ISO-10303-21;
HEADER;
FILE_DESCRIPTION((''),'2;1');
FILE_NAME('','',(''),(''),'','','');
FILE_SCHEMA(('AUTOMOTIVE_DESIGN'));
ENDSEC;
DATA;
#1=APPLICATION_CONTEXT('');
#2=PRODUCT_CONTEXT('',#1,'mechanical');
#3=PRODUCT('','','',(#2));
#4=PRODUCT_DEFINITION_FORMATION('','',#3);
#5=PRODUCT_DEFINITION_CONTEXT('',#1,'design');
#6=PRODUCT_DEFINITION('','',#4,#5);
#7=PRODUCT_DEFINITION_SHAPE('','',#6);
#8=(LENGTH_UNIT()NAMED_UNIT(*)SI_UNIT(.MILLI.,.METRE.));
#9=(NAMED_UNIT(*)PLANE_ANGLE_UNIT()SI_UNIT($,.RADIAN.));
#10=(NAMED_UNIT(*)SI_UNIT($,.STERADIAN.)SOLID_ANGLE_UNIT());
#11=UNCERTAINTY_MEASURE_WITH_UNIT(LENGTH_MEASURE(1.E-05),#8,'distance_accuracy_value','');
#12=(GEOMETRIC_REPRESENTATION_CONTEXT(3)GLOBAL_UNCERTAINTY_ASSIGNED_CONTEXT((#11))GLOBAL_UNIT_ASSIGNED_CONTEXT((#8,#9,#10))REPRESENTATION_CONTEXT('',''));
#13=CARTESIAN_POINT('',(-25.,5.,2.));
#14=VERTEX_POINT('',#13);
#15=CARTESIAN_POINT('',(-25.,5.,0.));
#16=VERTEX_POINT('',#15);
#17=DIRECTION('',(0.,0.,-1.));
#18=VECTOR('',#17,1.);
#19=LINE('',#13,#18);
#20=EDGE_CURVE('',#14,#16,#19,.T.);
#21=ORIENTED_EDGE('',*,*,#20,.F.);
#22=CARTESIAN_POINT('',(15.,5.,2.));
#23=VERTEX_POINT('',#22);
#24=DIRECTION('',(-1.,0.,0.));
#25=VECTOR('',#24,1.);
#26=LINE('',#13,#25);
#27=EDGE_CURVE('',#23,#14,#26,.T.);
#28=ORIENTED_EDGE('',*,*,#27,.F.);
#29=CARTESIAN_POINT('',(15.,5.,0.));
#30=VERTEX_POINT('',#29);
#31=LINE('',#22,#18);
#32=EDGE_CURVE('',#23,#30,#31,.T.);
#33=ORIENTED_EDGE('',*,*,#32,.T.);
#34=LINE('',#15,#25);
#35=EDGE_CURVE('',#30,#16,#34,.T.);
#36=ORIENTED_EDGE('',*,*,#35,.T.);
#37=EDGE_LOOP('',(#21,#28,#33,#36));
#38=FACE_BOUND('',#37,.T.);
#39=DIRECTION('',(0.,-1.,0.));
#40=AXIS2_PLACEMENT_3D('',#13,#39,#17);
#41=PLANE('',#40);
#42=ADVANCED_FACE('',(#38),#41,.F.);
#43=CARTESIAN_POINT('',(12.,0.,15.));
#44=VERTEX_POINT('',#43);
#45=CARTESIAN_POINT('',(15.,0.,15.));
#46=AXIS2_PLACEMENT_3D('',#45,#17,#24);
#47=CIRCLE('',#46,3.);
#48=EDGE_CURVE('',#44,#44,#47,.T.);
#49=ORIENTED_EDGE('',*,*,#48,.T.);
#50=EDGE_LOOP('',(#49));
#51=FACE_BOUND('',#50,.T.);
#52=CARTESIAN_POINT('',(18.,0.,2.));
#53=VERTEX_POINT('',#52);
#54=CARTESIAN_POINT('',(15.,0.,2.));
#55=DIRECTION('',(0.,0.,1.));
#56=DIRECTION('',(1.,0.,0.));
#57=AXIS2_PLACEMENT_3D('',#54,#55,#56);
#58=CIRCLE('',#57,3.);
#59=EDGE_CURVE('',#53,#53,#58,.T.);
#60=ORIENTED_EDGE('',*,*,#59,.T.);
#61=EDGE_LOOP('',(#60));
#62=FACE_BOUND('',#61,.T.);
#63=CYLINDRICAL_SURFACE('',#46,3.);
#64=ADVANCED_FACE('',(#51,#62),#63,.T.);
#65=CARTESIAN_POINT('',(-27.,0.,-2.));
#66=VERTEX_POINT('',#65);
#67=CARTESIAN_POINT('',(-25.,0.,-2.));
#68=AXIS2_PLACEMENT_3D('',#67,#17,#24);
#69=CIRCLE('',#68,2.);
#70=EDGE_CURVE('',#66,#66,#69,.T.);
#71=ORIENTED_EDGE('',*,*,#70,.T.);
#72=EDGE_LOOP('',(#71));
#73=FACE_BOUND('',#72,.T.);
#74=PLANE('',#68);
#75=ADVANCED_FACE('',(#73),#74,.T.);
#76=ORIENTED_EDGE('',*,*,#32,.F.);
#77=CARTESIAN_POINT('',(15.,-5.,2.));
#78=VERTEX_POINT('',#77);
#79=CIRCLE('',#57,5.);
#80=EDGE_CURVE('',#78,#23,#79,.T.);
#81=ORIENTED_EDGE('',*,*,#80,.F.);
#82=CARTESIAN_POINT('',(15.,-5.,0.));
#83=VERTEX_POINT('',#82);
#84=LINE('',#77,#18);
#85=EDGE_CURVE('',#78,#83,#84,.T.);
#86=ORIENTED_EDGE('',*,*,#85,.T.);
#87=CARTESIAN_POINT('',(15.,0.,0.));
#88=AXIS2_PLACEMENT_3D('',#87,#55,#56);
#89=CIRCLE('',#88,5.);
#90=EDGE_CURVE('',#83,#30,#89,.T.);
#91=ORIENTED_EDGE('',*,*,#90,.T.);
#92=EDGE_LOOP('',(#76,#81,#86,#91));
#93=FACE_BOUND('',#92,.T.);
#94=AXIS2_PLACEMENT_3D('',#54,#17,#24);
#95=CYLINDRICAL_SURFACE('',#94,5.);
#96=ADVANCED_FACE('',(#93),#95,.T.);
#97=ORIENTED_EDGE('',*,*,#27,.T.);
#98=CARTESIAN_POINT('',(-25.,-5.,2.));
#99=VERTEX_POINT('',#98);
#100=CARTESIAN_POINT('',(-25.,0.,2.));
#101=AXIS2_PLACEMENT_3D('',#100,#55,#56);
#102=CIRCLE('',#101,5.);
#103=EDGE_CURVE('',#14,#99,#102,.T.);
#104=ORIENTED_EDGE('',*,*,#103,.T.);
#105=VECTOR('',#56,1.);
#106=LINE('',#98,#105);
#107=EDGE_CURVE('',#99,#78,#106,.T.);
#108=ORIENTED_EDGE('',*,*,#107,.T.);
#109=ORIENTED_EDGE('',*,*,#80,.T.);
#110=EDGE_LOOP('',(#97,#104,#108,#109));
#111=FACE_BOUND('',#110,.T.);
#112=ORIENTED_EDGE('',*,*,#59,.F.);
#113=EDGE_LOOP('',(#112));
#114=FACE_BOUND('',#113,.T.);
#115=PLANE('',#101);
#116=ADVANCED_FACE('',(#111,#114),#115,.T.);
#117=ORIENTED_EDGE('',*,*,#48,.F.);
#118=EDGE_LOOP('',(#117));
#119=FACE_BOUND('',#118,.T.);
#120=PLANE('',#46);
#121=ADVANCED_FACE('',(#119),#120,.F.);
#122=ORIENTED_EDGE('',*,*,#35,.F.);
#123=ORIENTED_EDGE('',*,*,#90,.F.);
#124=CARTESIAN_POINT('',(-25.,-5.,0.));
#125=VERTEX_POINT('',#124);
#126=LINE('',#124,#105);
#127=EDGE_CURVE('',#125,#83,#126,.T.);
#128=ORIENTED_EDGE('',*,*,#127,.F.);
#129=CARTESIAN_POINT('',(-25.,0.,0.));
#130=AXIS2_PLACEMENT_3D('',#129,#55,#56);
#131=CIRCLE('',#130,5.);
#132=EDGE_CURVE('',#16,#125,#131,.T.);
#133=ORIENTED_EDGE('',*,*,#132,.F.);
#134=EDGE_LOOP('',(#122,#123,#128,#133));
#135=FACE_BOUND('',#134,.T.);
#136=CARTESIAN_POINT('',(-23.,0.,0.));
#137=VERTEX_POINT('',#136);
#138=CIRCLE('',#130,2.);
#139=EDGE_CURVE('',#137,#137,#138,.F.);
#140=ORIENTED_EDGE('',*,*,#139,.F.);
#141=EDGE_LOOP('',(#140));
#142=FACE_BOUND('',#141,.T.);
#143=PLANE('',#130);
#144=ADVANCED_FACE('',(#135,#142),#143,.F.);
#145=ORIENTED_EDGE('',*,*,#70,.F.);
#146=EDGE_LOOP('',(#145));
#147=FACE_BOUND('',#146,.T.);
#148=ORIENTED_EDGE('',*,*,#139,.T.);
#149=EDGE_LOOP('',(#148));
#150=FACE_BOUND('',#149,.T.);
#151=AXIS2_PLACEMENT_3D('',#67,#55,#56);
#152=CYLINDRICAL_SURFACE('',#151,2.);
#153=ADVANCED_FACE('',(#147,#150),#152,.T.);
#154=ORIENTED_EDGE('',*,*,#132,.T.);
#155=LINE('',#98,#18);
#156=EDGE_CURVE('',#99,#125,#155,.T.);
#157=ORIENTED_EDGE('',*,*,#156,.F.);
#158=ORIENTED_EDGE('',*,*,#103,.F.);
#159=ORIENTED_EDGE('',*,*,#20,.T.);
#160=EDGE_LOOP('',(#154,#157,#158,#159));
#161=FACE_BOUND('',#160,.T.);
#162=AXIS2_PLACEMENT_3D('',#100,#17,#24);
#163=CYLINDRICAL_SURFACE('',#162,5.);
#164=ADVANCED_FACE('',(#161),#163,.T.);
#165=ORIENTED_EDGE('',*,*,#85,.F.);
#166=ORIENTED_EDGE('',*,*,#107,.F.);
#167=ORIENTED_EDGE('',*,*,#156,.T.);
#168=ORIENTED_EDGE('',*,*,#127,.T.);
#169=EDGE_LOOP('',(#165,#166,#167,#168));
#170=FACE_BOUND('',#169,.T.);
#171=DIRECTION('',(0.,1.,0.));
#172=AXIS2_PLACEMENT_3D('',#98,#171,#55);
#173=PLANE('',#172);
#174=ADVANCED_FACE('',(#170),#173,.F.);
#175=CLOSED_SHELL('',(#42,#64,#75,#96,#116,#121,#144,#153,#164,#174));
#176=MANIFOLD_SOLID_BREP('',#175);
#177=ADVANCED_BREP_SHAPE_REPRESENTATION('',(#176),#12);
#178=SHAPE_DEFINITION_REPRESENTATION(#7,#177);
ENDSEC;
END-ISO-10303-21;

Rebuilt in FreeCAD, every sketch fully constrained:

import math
import FreeCAD as App
import Part
import Sketcher

doc = App.newDocument("Part")
params = doc.addObject("Spreadsheet::Sheet", "Params")
for row, (alias, value) in enumerate([
    ("sketch1_radius", "5 mm"),
    ("sketch1_width", "40 mm"),
    ("pad1_length", "2 mm"),
    ("sketch2_diameter", "4 mm"),
    ("pad2_length", "2 mm"),
    ("sketch3_diameter", "6 mm"),
    ("pad3_length", "15 mm"),
], start=1):
    params.set(f"A{row}", alias)
    params.set(f"B{row}", "=" + value)
    params.setAlias(f"B{row}", alias)

body = doc.addObject("PartDesign::Body", "Body")

# Sketch on XY plane
sketch1 = body.newObject("Sketcher::SketchObject", "Sketch")
sketch1.AttachmentSupport = (doc.getObject("XY_Plane"), [""])
sketch1.MapMode = "FlatFace"
sketch1.addGeometry([
    Part.LineSegment(App.Vector(15, 5, 0), App.Vector(-25, 5, 0)),
    Part.ArcOfCircle(Part.Circle(App.Vector(-25, 0, 0), App.Vector(0, 0, 1), 5), math.radians(90), math.radians(270)),
    Part.LineSegment(App.Vector(-25, -5, 0), App.Vector(15, -5, 0)),
    Part.ArcOfCircle(Part.Circle(App.Vector(15, 0, 0), App.Vector(0, 0, 1), 5), math.radians(-90), math.radians(90)),
], False)
sketch1.addConstraint([
    Sketcher.Constraint("Tangent", 0, 2, 1, 1),
    Sketcher.Constraint("Tangent", 1, 2, 2, 1),
    Sketcher.Constraint("Tangent", 2, 2, 3, 1),
    Sketcher.Constraint("Tangent", 3, 2, 0, 1),
    Sketcher.Constraint("Horizontal", 0),
    Sketcher.Constraint("Horizontal", 2),
    Sketcher.Constraint("PointOnObject", 1, 3, -1),
    Sketcher.Constraint("Radius", 1, 5.0),
    Sketcher.Constraint("DistanceX", 0, 2, 0, 1, 40.0),
    Sketcher.Constraint("DistanceX", 1, 3, -1, 1, 25.0),
])
sketch1.setExpression("Constraints[7]", "Params.sketch1_radius")
sketch1.setExpression("Constraints[8]", "Params.sketch1_width")
pad1 = body.newObject("PartDesign::Pad", "Pad")
pad1.Profile = sketch1
pad1.setExpression("Length", "Params.pad1_length")

# Sketch on XY plane
sketch2 = body.newObject("Sketcher::SketchObject", "Sketch001")
sketch2.AttachmentSupport = (doc.getObject("XY_Plane"), [""])
sketch2.MapMode = "FlatFace"
sketch2.addGeometry(Part.Circle(App.Vector(-25, 0, 0), App.Vector(0, 0, 1), 2), False)
sketch2.addConstraint([
    Sketcher.Constraint("PointOnObject", 0, 3, -1),
    Sketcher.Constraint("Diameter", 0, 4.0),
    Sketcher.Constraint("DistanceX", 0, 3, -1, 1, 25.0),
])
sketch2.setExpression("Constraints[1]", "Params.sketch2_diameter")
pad2 = body.newObject("PartDesign::Pad", "Pad001")
pad2.Profile = sketch2
pad2.setExpression("Length", "Params.pad2_length")
pad2.Reversed = True

# Sketch on XY plane
sketch3 = body.newObject("Sketcher::SketchObject", "Sketch002")
sketch3.AttachmentSupport = (doc.getObject("XY_Plane"), [""])
sketch3.MapMode = "FlatFace"
sketch3.addGeometry(Part.Circle(App.Vector(15, 0, 0), App.Vector(0, 0, 1), 3), False)
sketch3.addConstraint([
    Sketcher.Constraint("PointOnObject", 0, 3, -1),
    Sketcher.Constraint("Diameter", 0, 6.0),
    Sketcher.Constraint("DistanceX", -1, 1, 0, 3, 15.0),
])
sketch3.setExpression("Constraints[1]", "Params.sketch3_diameter")
pad3 = body.newObject("PartDesign::Pad", "Pad002")
pad3.Profile = sketch3
pad3.setExpression("Length", "Params.pad3_length")

doc.recompute()
